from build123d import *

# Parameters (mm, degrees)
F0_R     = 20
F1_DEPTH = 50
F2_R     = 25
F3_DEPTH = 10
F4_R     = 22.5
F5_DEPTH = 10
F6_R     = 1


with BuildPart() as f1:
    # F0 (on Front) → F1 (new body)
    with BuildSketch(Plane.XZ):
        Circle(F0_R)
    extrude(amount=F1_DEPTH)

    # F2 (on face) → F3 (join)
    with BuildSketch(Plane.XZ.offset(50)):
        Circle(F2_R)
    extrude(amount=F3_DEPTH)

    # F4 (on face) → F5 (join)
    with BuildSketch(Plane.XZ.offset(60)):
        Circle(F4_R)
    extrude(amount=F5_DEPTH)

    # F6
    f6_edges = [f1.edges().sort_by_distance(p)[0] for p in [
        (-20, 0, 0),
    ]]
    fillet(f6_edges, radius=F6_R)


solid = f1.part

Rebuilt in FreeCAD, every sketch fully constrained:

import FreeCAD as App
import Part
import Sketcher

V = App.Vector


def edges_at(feature, points):
    """Names of the edges that pass closest to the given points."""
    edges = feature.Shape.Edges
    near = lambda p: min(range(len(edges)), key=lambda i: edges[i].distToShape(Part.Vertex(*p))[0])
    return sorted({f"Edge{near(p) + 1}" for p in points})

doc = App.newDocument("Part")
body = doc.addObject("PartDesign::Body", "Body")

# Sketch on XZ plane
sketch1 = body.newObject("Sketcher::SketchObject", "Sketch")
sketch1.AttachmentSupport = (doc.getObject("XZ_Plane"), [""])
sketch1.MapMode = "FlatFace"
sketch1.addGeometry(Part.Circle(V(0, 0, 0), V(0, 0, 1), 20), False)
sketch1.addConstraint(Sketcher.Constraint("Coincident", 0, 3, -1, 1))
sketch1.addConstraint(Sketcher.Constraint("Diameter", 0, 40.0))
pad1 = body.newObject("PartDesign::Pad", "Pad")
pad1.Profile = sketch1
pad1.Length = 50

# Sketch on XZ plane
sketch2 = body.newObject("Sketcher::SketchObject", "Sketch001")
sketch2.AttachmentSupport = (doc.getObject("XZ_Plane"), [""])
sketch2.MapMode = "FlatFace"
sketch2.AttachmentOffset = App.Placement(V(0, 0, 50), App.Rotation())
sketch2.addGeometry(Part.Circle(V(0, 0, 0), V(0, 0, 1), 25), False)
sketch2.addConstraint(Sketcher.Constraint("Coincident", 0, 3, -1, 1))
sketch2.addConstraint(Sketcher.Constraint("Diameter", 0, 50.0))
pad2 = body.newObject("PartDesign::Pad", "Pad001")
pad2.Profile = sketch2
pad2.Length = 10

# Sketch on XZ plane
sketch3 = body.newObject("Sketcher::SketchObject", "Sketch002")
sketch3.AttachmentSupport = (doc.getObject("XZ_Plane"), [""])
sketch3.MapMode = "FlatFace"
sketch3.AttachmentOffset = App.Placement(V(0, 0, 60), App.Rotation())
sketch3.addGeometry(Part.Circle(V(0, 0, 0), V(0, 0, 1), 22), False)
sketch3.addConstraint(Sketcher.Constraint("Coincident", 0, 3, -1, 1))
sketch3.addConstraint(Sketcher.Constraint("Diameter", 0, 45.0))
pad3 = body.newObject("PartDesign::Pad", "Pad002")
pad3.Profile = sketch3
pad3.Length = 10
doc.recompute()

fillet = body.newObject("PartDesign::Fillet", "Fillet")
fillet.Base = (pad3, edges_at(pad3, [(-20, 0, 0)]))
fillet.Radius = 1

doc.recompute()
